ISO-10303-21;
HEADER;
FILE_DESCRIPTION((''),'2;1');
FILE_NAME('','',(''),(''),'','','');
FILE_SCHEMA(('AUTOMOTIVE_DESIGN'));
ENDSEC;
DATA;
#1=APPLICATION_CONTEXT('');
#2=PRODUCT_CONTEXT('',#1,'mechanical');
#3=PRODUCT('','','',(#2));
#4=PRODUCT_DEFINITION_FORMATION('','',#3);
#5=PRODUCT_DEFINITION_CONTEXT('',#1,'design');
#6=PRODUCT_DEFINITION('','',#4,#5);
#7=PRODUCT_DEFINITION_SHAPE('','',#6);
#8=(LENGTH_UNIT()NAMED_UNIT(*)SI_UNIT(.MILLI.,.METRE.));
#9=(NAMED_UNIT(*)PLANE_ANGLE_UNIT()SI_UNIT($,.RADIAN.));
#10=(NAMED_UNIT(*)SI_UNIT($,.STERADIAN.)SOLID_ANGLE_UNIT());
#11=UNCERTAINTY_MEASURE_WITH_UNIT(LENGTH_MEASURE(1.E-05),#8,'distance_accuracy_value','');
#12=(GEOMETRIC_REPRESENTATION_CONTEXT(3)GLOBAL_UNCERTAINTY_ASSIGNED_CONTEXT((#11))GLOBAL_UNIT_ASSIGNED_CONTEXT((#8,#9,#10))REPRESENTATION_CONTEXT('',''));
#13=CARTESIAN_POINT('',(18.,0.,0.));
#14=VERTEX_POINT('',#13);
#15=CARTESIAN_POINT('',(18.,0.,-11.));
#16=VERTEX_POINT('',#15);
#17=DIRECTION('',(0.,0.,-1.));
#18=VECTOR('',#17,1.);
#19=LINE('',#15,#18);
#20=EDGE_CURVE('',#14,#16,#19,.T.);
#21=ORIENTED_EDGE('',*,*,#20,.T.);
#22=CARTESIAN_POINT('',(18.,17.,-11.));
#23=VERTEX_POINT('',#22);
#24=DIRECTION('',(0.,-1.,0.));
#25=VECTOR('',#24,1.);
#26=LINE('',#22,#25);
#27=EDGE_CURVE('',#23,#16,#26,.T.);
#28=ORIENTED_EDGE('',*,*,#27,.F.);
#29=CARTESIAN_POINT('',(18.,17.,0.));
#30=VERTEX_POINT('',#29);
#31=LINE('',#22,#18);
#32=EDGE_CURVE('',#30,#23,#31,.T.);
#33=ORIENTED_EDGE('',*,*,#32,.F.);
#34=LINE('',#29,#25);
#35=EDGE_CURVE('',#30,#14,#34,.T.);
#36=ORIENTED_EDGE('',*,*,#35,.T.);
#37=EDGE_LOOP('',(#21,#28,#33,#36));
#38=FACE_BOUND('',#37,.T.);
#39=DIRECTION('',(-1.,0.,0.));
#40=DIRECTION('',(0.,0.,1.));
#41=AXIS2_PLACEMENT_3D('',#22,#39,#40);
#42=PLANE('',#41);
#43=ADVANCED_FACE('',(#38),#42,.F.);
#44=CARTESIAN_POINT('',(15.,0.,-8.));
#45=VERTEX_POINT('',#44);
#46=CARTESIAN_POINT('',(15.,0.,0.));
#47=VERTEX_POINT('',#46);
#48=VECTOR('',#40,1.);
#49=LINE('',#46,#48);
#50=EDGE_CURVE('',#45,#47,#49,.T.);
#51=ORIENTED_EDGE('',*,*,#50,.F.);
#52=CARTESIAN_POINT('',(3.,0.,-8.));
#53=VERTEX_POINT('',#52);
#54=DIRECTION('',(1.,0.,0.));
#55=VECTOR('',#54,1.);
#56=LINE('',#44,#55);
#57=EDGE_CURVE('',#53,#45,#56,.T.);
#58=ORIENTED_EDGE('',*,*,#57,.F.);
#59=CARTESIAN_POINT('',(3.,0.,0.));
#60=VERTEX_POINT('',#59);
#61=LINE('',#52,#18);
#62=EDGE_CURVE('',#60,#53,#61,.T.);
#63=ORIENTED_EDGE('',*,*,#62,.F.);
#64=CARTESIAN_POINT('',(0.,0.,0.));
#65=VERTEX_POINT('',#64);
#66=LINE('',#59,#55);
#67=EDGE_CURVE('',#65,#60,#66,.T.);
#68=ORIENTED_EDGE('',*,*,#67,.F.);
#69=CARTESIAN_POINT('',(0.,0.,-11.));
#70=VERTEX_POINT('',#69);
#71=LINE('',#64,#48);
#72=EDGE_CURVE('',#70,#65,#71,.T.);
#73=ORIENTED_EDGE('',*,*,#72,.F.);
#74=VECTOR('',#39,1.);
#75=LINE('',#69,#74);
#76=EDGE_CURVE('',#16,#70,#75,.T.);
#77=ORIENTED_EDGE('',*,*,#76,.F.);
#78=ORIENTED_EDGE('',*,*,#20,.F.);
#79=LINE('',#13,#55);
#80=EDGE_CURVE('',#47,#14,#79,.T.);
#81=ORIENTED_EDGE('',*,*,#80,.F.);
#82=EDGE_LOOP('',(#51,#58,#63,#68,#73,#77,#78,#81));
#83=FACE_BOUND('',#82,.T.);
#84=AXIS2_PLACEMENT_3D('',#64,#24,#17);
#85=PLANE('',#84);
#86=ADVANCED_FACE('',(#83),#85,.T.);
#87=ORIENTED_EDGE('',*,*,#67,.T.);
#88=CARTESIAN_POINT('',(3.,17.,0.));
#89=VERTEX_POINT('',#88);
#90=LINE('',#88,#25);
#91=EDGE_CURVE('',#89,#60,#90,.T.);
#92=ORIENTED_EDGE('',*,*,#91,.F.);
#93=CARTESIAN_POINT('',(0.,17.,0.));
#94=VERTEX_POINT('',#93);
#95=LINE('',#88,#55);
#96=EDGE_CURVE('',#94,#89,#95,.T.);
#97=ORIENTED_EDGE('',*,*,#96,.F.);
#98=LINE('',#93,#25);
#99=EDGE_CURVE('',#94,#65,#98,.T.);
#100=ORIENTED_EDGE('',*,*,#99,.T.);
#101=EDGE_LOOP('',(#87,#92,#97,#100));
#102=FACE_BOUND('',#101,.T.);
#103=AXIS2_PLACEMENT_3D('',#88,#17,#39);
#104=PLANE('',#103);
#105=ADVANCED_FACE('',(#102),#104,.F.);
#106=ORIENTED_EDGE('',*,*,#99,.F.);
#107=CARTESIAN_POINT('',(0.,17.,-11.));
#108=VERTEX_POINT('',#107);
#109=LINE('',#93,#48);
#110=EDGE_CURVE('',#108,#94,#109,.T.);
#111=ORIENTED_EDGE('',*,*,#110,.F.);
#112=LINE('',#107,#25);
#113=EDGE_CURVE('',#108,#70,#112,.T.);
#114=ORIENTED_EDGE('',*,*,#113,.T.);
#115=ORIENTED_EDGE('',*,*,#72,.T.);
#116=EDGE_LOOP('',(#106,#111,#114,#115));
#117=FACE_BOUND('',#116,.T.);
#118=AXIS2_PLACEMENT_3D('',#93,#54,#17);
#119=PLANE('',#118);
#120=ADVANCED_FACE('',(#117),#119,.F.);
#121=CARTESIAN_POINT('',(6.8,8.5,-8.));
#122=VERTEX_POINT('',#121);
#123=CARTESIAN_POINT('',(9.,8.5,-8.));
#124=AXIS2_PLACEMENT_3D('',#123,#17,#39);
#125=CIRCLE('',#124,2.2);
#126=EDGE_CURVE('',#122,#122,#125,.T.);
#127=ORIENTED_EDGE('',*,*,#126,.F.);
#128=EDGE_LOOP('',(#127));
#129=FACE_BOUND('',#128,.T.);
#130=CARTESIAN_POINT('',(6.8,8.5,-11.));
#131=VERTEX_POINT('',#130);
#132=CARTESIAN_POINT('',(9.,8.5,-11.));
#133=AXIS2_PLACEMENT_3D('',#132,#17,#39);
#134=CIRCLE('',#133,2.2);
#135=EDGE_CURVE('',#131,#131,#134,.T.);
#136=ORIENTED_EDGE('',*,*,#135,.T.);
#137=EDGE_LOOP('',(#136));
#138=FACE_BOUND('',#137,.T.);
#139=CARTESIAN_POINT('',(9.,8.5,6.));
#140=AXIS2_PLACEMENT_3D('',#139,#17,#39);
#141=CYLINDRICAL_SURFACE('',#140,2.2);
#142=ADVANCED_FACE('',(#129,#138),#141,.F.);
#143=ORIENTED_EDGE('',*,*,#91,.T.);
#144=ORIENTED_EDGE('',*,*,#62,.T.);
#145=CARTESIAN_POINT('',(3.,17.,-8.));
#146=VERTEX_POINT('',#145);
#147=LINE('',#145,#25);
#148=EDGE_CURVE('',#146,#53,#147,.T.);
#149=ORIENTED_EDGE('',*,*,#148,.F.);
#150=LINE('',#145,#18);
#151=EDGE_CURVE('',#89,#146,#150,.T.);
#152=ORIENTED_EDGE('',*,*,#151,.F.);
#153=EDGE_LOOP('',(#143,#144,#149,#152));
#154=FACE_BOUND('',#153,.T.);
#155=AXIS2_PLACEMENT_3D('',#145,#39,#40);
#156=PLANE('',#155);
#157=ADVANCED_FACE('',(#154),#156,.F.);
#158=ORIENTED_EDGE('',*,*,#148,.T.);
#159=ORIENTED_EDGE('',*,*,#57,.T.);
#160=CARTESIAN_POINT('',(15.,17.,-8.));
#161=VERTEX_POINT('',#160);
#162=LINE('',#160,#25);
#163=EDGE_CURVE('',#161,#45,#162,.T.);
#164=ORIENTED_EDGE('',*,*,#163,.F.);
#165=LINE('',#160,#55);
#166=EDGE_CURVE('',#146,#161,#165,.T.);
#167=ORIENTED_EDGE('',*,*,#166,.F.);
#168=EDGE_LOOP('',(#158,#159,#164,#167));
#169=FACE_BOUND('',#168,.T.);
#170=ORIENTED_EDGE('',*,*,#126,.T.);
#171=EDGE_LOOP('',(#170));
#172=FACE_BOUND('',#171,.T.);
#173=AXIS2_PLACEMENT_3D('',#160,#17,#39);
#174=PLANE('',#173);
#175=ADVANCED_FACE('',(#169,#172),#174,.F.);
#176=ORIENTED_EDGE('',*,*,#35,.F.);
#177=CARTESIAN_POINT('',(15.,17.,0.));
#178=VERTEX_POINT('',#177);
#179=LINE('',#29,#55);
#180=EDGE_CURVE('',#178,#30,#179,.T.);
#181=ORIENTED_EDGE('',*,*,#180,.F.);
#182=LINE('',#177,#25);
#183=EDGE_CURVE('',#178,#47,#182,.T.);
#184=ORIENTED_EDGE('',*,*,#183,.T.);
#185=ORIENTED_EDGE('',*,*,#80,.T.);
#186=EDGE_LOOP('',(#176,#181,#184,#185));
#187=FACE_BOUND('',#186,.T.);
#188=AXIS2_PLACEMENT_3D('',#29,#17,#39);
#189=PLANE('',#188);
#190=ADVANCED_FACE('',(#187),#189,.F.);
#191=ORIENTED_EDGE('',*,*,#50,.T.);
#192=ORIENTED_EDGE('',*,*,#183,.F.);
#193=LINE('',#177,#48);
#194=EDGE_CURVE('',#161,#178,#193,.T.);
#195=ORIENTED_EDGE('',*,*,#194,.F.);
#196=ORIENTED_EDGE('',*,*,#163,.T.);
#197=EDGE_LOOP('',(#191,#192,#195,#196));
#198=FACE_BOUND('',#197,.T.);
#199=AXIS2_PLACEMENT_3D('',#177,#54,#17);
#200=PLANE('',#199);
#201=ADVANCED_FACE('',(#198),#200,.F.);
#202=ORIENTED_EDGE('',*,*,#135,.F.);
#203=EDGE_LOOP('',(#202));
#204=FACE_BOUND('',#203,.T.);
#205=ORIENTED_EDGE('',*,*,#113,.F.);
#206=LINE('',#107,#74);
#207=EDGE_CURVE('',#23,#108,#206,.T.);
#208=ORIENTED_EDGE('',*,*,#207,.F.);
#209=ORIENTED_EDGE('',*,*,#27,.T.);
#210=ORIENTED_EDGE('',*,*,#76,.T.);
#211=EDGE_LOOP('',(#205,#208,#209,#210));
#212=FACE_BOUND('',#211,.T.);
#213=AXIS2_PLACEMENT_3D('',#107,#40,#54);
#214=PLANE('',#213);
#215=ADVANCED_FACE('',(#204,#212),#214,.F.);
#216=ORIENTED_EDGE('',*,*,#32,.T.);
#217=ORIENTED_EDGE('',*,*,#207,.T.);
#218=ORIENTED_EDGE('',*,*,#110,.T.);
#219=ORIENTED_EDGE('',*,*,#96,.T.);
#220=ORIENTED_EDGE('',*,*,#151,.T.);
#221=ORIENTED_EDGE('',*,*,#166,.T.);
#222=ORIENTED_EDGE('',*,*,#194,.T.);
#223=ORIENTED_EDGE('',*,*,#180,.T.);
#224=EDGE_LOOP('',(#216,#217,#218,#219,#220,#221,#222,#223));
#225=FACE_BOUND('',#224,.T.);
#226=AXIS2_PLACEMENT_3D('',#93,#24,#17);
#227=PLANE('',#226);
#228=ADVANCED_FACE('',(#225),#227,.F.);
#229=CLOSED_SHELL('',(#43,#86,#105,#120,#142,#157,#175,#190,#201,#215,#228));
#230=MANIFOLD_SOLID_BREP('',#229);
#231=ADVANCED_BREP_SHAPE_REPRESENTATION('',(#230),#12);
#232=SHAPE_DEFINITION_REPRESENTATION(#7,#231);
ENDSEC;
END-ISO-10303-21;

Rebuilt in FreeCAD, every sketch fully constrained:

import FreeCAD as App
import Part
import Sketcher
from FreeCAD import Vector


def add_polygon(sketch, points):
    """Adds a closed chain of lines whose ends are joined by coincident constraints."""
    first, n = sketch.GeometryCount, len(points)
    for a, b in zip(points, points[1:] + points[:1]):
        sketch.addGeometry(Part.LineSegment(App.Vector(*a, 0), App.Vector(*b, 0)), False)
    for i in range(n):
        sketch.addConstraint(Sketcher.Constraint("Coincident", first + i, 2, first + (i + 1) % n, 1))

doc = App.newDocument("Part")
body = doc.addObject("PartDesign::Body", "Body")

sketch1 = body.newObject("Sketcher::SketchObject", "Sketch")
sketch1.AttachmentSupport = (doc.getObject("XZ_Plane"), [""])
sketch1.MapMode = "FlatFace"
add_polygon(sketch1, [(0, -11), (0, 0), (3, 0), (3, -8), (15, -8), (15, 0), (18, 0), (18, -11)])
sketch1.addConstraint([
    Sketcher.Constraint("Vertical", 0),
    Sketcher.Constraint("Horizontal", 1),
    Sketcher.Constraint("Vertical", 2),
    Sketcher.Constraint("Horizontal", 3),
    Sketcher.Constraint("Vertical", 4),
    Sketcher.Constraint("Horizontal", 5),
    Sketcher.Constraint("Vertical", 6),
    Sketcher.Constraint("Horizontal", 7),
    Sketcher.Constraint("Coincident", 0, 2, -1, 1),
    Sketcher.Constraint("PointOnObject", 4, 2, -1),
    Sketcher.Constraint("Equal", 1, 5),
    Sketcher.Constraint("DistanceX", 1, 1, 1, 2, 3.0),
    Sketcher.Constraint("DistanceX", 3, 1, 3, 2, 12.0),
    Sketcher.Constraint("DistanceY", 0, 1, 0, 2, 11.0),
    Sketcher.Constraint("DistanceY", 2, 2, 2, 1, 8.0),
])
pad1 = body.newObject("PartDesign::Pad", "Pad")
pad1.Profile = sketch1
pad1.Length = 17
pad1.Reversed = True

sketch2 = body.newObject("Sketcher::SketchObject", "Sketch001")
sketch2.AttachmentSupport = (doc.getObject("XY_Plane"), [""])
sketch2.MapMode = "FlatFace"
sketch2.AttachmentOffset = App.Placement(Vector(0, 0, -11), App.Rotation())
sketch2.addGeometry(Part.Circle(Vector(9, 8.5, 0), Vector(0, 0, 1), 2.2), False)
sketch2.addConstraint([
    Sketcher.Constraint("Diameter", 0, 4.4),
    Sketcher.Constraint("DistanceX", -1, 1, 0, 3, 9.0),
    Sketcher.Constraint("DistanceY", -1, 1, 0, 3, 8.5),
])
pocket1 = body.newObject("PartDesign::Pocket", "Pocket")
pocket1.Profile = sketch2
pocket1.Length = 17
pocket1.Reversed = True

doc.recompute()
